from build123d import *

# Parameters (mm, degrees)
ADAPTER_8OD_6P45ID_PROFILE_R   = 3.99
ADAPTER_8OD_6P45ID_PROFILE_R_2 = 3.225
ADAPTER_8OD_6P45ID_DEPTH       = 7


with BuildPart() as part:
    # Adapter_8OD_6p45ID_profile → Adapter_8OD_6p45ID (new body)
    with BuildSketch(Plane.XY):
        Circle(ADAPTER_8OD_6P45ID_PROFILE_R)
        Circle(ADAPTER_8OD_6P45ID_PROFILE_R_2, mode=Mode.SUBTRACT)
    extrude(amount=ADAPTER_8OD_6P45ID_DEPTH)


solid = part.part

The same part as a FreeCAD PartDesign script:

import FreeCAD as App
import Part
import Sketcher

doc = App.newDocument("Part")
body = doc.addObject("PartDesign::Body", "Body")

# Sketch on XY plane
sketch1 = body.newObject("Sketcher::SketchObject", "Sketch")
sketch1.AttachmentSupport = (doc.getObject("XY_Plane"), [""])
sketch1.MapMode = "FlatFace"
sketch1.addGeometry([
    Part.Circle(App.Vector(0, 0, 0), App.Vector(0, 0, 1), 4),
    Part.Circle(App.Vector(0, 0, 0), App.Vector(0, 0, 1), 3.2),
], False)
sketch1.addConstraint([
    Sketcher.Constraint("Coincident", 0, 3, -1, 1),
    Sketcher.Constraint("Coincident", 1, 3, -1, 1),
    Sketcher.Constraint("Diameter", 0, 7.98),
    Sketcher.Constraint("Diameter", 1, 6.45),
])
pad1 = body.newObject("PartDesign::Pad", "Pad")
pad1.Profile = sketch1
pad1.Length = 7

doc.recompute()
